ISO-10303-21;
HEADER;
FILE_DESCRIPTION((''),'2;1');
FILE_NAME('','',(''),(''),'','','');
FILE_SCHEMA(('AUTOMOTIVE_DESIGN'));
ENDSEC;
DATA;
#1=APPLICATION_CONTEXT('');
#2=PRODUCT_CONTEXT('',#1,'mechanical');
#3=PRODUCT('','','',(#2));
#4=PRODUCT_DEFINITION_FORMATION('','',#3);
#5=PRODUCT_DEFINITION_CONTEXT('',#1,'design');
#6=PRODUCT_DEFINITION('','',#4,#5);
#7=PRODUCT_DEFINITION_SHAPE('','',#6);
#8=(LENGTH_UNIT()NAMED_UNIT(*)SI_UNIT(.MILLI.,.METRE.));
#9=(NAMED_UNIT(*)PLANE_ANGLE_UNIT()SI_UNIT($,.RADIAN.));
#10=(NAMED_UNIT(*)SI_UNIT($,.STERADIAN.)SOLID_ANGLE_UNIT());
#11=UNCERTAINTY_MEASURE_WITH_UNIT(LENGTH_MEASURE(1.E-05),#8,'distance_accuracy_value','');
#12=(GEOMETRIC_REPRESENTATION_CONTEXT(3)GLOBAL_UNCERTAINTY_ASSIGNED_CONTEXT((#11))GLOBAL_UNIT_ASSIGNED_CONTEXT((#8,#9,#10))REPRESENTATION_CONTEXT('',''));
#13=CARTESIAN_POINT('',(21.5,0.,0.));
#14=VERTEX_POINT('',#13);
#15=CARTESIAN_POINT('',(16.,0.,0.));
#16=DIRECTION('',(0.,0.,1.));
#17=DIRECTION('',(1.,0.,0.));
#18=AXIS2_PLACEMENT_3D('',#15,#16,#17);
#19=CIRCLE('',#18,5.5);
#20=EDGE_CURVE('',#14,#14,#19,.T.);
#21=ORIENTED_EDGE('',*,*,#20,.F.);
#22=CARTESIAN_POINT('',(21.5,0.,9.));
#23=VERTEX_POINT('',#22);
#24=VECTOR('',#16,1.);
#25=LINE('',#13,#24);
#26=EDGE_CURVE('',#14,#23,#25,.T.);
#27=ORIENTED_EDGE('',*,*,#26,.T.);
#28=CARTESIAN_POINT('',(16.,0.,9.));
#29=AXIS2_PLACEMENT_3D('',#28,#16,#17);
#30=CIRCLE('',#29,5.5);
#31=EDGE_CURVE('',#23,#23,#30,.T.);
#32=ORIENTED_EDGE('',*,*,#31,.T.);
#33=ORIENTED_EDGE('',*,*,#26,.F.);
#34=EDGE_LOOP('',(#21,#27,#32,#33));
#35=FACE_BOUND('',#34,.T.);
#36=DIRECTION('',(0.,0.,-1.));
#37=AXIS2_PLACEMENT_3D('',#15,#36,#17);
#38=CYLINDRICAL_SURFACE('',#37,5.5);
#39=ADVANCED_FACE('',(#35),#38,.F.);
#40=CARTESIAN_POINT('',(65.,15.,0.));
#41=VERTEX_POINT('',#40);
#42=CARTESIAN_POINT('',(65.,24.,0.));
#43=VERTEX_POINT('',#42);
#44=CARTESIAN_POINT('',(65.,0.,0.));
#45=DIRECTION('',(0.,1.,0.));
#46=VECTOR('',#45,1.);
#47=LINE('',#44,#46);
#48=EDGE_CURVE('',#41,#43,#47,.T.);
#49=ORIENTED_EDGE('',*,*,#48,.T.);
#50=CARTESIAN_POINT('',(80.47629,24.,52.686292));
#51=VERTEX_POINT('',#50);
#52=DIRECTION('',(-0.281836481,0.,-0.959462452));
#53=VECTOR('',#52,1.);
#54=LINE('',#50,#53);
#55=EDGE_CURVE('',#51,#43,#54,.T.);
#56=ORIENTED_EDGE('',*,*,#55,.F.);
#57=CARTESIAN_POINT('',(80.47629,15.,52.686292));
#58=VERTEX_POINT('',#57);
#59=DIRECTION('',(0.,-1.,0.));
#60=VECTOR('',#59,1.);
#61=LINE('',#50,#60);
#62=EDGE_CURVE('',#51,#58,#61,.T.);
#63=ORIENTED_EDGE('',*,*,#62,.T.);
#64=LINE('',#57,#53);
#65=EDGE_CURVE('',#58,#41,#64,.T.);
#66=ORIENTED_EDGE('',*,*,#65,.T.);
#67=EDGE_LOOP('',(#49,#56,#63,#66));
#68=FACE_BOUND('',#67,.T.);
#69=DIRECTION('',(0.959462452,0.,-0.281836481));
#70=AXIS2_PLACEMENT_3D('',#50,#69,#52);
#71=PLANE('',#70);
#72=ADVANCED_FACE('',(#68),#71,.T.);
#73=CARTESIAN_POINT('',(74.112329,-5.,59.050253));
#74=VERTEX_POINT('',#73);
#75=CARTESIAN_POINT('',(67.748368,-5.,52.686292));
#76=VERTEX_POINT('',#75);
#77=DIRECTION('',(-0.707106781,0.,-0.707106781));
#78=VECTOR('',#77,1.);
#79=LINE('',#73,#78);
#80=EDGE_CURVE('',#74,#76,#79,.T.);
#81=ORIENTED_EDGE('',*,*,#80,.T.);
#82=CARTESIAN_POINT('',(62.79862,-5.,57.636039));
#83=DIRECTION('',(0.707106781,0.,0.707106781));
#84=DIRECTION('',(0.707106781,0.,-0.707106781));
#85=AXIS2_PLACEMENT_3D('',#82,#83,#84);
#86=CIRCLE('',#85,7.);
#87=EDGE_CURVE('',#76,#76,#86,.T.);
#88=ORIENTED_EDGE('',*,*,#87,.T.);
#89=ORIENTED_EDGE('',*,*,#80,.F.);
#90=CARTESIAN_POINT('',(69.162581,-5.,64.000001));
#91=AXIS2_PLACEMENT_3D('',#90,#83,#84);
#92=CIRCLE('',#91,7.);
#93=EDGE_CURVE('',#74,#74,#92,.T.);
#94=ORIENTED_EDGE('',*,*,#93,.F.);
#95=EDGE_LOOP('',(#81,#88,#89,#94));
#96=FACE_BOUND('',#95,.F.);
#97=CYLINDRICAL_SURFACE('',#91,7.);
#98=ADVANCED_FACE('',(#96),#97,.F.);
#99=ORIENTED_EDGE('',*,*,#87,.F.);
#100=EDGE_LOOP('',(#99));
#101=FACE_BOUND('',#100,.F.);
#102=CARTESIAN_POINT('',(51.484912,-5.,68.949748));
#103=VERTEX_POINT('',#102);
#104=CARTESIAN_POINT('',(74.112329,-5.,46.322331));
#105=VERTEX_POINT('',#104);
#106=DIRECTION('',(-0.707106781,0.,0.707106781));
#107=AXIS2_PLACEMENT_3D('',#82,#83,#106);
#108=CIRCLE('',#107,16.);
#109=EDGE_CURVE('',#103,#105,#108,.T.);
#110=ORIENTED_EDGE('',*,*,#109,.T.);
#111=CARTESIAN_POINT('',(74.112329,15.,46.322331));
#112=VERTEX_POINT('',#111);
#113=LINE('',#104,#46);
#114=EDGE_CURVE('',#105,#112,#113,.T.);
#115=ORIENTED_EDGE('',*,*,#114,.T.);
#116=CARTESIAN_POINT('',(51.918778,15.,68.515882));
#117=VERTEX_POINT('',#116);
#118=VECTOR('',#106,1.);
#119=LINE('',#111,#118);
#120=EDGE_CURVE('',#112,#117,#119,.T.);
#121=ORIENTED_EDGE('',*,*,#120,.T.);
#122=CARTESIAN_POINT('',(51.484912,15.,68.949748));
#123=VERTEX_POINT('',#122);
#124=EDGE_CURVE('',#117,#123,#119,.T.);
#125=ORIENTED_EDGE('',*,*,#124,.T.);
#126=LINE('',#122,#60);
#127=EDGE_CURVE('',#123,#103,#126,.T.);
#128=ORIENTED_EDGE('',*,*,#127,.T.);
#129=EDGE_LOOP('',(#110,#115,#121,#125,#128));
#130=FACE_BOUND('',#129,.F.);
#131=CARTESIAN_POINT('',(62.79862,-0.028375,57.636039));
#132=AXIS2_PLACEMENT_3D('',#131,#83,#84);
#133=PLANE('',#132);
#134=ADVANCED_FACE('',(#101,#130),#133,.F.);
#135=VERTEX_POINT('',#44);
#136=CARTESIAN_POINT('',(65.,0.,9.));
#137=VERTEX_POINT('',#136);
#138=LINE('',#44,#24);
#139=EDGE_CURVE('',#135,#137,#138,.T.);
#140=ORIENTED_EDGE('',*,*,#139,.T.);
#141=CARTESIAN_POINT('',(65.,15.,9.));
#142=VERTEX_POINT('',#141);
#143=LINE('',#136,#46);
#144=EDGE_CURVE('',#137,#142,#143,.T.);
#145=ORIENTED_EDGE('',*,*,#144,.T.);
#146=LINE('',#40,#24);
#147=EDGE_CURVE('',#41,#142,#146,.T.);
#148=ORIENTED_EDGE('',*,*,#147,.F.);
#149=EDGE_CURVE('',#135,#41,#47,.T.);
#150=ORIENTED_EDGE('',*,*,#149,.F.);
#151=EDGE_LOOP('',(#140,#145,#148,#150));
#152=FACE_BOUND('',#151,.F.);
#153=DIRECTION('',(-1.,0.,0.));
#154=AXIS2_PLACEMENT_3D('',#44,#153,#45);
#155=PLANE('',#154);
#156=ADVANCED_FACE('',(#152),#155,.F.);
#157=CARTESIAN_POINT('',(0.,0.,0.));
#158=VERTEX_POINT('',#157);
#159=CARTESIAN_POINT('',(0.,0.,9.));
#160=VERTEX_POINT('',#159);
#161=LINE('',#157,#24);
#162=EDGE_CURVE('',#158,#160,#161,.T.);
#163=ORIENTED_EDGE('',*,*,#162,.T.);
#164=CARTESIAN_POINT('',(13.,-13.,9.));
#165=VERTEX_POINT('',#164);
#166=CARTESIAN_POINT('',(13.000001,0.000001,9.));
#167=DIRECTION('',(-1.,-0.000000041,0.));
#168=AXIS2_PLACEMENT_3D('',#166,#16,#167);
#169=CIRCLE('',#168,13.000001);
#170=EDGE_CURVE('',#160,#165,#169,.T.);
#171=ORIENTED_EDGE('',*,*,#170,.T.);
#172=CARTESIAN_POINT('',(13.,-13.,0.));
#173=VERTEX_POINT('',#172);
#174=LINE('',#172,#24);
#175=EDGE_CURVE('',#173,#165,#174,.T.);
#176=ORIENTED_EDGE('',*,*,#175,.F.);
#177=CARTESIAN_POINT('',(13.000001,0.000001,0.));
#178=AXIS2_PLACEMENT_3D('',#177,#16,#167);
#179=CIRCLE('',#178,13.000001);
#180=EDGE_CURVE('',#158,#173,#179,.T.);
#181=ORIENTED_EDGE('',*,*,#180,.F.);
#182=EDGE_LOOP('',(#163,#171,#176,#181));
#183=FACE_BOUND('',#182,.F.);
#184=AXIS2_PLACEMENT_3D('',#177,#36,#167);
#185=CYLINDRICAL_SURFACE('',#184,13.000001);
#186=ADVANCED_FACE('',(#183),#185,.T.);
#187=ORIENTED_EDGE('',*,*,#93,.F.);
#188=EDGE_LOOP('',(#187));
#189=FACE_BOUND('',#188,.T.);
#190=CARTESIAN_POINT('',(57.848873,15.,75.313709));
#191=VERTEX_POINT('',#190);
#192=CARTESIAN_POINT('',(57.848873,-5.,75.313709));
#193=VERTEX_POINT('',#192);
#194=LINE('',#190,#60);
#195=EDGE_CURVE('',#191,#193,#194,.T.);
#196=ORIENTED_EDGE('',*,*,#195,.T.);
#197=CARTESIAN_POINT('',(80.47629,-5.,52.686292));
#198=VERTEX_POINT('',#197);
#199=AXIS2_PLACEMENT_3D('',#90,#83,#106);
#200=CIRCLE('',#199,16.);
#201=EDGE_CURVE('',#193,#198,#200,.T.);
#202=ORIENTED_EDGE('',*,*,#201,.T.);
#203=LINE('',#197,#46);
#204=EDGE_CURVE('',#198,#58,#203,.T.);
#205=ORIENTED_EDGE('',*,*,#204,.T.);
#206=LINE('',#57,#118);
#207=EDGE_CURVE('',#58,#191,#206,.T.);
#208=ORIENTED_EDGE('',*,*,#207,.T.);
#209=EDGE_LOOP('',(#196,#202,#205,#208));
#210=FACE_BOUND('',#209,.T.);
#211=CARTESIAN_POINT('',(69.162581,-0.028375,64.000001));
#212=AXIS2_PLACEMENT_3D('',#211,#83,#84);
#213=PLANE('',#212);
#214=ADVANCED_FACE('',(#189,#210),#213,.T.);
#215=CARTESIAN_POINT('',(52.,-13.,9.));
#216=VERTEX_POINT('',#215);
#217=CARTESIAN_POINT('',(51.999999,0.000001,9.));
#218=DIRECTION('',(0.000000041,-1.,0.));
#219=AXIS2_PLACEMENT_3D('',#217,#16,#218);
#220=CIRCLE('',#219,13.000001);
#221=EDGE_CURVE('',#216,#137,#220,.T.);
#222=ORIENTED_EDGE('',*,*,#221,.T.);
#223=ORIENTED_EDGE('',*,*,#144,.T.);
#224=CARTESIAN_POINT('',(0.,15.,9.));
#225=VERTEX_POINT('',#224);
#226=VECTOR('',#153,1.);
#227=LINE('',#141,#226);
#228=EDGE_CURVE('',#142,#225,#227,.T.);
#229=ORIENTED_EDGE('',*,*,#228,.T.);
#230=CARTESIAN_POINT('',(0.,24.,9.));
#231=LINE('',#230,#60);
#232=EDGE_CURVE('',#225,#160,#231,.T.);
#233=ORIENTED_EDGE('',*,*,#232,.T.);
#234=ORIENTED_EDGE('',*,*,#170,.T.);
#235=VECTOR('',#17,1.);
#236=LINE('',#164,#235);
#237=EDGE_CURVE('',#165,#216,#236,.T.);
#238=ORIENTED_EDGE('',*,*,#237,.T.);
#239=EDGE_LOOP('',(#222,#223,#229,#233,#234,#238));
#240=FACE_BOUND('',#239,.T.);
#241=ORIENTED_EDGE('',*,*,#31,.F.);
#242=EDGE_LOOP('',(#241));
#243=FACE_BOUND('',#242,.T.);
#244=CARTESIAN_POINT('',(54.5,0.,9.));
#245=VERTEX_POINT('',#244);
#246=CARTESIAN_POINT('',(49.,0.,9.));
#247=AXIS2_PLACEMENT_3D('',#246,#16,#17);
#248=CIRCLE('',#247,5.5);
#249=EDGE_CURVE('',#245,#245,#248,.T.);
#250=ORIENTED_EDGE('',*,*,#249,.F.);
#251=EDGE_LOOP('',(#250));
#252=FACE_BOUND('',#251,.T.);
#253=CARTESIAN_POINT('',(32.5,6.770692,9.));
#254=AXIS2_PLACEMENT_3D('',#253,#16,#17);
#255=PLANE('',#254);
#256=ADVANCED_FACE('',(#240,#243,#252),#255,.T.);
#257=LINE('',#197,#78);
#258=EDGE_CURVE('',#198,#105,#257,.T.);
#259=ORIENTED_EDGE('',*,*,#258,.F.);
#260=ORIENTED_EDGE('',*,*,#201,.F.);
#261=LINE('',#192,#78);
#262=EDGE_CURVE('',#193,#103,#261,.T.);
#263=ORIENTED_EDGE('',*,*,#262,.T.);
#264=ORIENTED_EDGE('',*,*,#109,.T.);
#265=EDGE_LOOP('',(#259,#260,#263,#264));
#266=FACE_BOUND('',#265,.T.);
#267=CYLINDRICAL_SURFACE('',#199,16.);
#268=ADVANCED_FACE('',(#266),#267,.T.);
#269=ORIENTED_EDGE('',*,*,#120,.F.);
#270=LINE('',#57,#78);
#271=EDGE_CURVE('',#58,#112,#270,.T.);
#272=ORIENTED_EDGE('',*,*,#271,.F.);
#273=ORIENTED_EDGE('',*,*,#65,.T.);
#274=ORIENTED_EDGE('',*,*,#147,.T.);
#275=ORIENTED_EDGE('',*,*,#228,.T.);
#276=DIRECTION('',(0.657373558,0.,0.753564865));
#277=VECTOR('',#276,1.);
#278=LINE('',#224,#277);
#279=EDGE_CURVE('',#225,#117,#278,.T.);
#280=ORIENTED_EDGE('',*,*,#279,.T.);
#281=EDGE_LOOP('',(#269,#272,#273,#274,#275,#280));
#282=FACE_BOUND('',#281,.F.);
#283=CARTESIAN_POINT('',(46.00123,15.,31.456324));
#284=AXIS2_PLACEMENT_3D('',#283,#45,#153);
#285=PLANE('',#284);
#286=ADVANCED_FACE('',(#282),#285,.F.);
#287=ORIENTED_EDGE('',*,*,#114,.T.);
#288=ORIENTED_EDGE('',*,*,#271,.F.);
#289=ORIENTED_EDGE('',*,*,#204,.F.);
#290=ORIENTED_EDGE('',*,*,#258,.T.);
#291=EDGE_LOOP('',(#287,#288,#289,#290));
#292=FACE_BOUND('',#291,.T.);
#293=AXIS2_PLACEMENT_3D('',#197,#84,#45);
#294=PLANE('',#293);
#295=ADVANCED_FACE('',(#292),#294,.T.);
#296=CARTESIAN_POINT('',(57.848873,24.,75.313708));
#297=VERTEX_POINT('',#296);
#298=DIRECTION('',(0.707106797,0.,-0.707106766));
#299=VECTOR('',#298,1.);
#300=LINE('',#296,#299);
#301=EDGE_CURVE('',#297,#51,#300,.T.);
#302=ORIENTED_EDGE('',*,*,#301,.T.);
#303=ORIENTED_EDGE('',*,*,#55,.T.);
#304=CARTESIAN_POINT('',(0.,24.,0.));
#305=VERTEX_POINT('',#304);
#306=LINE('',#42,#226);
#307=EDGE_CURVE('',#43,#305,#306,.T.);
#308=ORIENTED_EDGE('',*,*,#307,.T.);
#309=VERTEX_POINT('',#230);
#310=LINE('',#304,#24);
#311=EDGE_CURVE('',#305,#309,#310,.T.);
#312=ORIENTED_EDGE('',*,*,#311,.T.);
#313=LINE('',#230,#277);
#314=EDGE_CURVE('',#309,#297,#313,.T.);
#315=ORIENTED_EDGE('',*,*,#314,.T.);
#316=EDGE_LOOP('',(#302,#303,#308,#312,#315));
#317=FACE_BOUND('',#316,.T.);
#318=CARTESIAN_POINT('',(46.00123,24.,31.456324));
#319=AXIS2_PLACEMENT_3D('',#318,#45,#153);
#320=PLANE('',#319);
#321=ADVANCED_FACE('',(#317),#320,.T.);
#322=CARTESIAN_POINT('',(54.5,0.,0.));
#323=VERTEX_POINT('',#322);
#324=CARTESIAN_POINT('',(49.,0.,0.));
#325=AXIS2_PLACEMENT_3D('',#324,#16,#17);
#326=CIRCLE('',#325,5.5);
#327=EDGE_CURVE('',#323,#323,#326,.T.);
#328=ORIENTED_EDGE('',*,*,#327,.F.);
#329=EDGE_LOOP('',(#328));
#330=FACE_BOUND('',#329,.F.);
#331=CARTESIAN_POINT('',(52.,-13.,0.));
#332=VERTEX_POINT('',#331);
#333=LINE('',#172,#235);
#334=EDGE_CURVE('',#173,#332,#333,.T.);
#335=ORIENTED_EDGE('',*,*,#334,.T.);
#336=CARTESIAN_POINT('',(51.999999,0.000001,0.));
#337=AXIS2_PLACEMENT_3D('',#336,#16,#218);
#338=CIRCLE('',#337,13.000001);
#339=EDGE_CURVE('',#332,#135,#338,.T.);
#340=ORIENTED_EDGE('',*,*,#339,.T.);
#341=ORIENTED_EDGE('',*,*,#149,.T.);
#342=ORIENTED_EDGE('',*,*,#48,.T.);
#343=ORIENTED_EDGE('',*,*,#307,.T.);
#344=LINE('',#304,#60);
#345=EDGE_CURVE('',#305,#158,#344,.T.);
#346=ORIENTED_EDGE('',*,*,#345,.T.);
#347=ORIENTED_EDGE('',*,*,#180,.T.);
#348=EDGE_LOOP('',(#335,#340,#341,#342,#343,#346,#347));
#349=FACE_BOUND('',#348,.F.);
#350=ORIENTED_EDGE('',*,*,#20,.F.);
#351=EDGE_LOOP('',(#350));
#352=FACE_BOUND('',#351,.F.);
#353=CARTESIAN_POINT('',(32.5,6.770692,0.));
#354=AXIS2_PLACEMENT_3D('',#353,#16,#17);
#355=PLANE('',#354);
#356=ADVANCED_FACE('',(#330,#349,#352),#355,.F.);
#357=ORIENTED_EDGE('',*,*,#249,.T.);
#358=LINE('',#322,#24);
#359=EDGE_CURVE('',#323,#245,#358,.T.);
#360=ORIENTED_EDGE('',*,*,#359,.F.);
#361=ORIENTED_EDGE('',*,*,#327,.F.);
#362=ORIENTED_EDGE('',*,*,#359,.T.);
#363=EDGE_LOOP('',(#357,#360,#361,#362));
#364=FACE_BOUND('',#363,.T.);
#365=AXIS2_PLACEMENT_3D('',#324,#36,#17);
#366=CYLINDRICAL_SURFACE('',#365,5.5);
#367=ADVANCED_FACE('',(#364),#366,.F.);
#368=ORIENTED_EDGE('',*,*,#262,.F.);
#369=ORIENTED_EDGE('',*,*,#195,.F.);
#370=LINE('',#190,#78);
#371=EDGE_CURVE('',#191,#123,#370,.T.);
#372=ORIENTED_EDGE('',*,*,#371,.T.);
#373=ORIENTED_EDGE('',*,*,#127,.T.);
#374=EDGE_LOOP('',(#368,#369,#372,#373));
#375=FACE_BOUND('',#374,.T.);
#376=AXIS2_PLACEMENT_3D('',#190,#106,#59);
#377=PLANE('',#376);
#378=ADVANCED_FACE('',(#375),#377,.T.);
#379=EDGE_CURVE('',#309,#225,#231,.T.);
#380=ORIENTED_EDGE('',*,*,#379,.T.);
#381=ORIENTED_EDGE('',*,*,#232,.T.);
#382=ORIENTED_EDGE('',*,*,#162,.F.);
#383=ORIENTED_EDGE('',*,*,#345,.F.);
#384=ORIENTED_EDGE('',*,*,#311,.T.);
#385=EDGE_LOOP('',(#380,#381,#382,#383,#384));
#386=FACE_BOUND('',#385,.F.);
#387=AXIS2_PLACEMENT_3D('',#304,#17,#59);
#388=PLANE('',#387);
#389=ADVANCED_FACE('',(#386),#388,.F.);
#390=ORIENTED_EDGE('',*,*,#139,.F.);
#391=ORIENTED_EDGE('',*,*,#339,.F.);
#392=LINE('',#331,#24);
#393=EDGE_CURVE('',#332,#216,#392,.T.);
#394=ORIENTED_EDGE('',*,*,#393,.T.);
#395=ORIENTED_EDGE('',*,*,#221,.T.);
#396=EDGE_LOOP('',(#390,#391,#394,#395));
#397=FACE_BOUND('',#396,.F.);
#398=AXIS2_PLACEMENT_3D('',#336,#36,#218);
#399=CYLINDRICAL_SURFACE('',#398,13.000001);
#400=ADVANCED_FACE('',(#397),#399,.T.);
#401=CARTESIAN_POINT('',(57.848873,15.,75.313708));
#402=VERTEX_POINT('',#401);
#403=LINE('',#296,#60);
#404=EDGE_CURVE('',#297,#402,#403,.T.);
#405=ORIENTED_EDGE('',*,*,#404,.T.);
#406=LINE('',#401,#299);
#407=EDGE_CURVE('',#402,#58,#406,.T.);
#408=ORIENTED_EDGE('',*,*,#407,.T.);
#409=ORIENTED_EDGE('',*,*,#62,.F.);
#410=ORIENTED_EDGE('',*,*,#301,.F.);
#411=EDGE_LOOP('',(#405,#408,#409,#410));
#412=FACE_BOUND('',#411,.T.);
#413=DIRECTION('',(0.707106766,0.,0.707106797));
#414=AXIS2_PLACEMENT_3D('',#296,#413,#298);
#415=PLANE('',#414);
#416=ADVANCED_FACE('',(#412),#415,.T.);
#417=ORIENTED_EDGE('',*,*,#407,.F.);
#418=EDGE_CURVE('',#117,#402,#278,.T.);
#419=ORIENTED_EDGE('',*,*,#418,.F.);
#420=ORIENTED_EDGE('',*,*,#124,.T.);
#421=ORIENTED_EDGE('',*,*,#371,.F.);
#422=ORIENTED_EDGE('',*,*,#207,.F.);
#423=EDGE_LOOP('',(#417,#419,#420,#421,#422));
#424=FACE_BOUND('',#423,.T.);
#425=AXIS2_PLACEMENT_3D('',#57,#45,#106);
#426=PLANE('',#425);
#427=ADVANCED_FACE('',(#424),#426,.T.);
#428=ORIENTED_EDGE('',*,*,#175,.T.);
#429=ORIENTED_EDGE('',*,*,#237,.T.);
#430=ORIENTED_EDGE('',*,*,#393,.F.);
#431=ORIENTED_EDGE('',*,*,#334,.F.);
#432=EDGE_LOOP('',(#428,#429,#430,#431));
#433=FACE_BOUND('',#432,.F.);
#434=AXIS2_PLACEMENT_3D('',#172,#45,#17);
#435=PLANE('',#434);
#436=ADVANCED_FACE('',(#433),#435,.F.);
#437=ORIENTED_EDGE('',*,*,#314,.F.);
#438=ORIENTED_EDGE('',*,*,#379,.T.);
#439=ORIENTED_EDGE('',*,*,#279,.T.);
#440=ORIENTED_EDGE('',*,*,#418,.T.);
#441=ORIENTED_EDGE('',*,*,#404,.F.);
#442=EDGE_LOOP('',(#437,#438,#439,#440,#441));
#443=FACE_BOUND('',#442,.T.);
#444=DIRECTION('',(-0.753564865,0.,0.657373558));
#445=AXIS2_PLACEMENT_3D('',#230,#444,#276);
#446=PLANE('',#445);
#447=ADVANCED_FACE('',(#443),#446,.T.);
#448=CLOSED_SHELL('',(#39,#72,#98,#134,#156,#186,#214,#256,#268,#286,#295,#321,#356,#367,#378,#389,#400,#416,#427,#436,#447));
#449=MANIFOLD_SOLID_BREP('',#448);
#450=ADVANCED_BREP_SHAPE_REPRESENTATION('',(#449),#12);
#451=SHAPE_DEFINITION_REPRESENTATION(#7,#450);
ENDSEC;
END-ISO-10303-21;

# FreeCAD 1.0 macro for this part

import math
import FreeCAD as App
import Part
import Sketcher
from FreeCAD import Vector
Q = App.Units.Quantity

doc = App.newDocument("Part")
body = doc.addObject("PartDesign::Body", "Body")

sketch1 = body.newObject("Sketcher::SketchObject", "Sketch")
sketch1.AttachmentSupport = (doc.getObject("XY_Plane"), [""])
sketch1.MapMode = "FlatFace"
sketch1.addGeometry([
    Part.LineSegment(Vector(65, 24, 0), Vector(0, 24, 0)),
    Part.LineSegment(Vector(0, 24, 0), Vector(0, 0, 0)),
    Part.ArcOfCircle(Part.Circle(Vector(13, 0, 0), Vector(0, 0, 1), 13), math.radians(-180), math.radians(-90)),
    Part.LineSegment(Vector(13, -13, 0), Vector(52, -13, 0)),
    Part.ArcOfCircle(Part.Circle(Vector(52, 0, 0), Vector(0, 0, 1), 13), math.radians(-90), math.radians(0)),
    Part.LineSegment(Vector(65, 0, 0), Vector(65, 24, 0)),
    Part.Circle(Vector(16, 0, 0), Vector(0, 0, 1), 6),
    Part.Circle(Vector(49, 0, 0), Vector(0, 0, 1), 6),
], False)
sketch1.addConstraint([
    Sketcher.Constraint("Coincident", 0, 2, 1, 1),
    Sketcher.Constraint("Tangent", 1, 2, 2, 1),
    Sketcher.Constraint("Tangent", 2, 2, 3, 1),
    Sketcher.Constraint("Tangent", 3, 2, 4, 1),
    Sketcher.Constraint("Tangent", 4, 2, 5, 1),
    Sketcher.Constraint("Coincident", 5, 2, 0, 1),
    Sketcher.Constraint("Horizontal", 0),
    Sketcher.Constraint("Vertical", 1),
    Sketcher.Constraint("Horizontal", 3),
    Sketcher.Constraint("Vertical", 5),
    Sketcher.Constraint("Coincident", 1, 2, -1, 1),
    Sketcher.Constraint("Equal", 2, 4),
    Sketcher.Constraint("Equal", 6, 7),
    Sketcher.Constraint("PointOnObject", 6, 3, -1),
    Sketcher.Constraint("PointOnObject", 7, 3, -1),
    Sketcher.Constraint("Diameter", 6, Q("11 mm")),
    Sketcher.Constraint("Radius", 2, Q("13.000001 mm")),
    Sketcher.Constraint("DistanceX", 0, 2, 0, 1, Q("65 mm")),
    Sketcher.Constraint("DistanceY", 1, 2, 1, 1, Q("24 mm")),
    Sketcher.Constraint("DistanceX", -1, 1, 6, 3, Q("16 mm")),
    Sketcher.Constraint("DistanceX", -1, 1, 7, 3, Q("49 mm")),
])
pad1 = body.newObject("PartDesign::Pad", "Pad")
pad1.Profile = sketch1
pad1.Length = 9

sketch2 = body.newObject("Sketcher::SketchObject", "Sketch001")
sketch2.AttachmentSupport = (doc.getObject("XZ_Plane"), [""])
sketch2.MapMode = "FlatFace"
sketch2.AttachmentOffset = App.Placement(Vector(0, 0, -24), App.Rotation())
sketch2.addGeometry([
    Part.LineSegment(Vector(65, 9, 0), Vector(0, 9, 0)),
    Part.LineSegment(Vector(0, 9, 0), Vector(58, 75, 0)),
    Part.LineSegment(Vector(58, 75, 0), Vector(80, 53, 0)),
    Part.LineSegment(Vector(80, 53, 0), Vector(65, 0, 0)),
    Part.LineSegment(Vector(65, 0, 0), Vector(65, 9, 0)),
], False)
sketch2.addConstraint([
    Sketcher.Constraint("Coincident", 0, 2, 1, 1),
    Sketcher.Constraint("Coincident", 1, 2, 2, 1),
    Sketcher.Constraint("Coincident", 2, 2, 3, 1),
    Sketcher.Constraint("Coincident", 3, 2, 4, 1),
    Sketcher.Constraint("Coincident", 4, 2, 0, 1),
    Sketcher.Constraint("Horizontal", 0),
    Sketcher.Constraint("Vertical", 4),
    Sketcher.Constraint("PointOnObject", 0, 2, -2),
    Sketcher.Constraint("PointOnObject", 3, 2, -1),
    Sketcher.Constraint("DistanceX", 0, 2, 0, 1, Q("65 mm")),
    Sketcher.Constraint("DistanceY", 4, 1, 4, 2, Q("9 mm")),
    Sketcher.Constraint("Angle", 2, Q("-44.999999 deg")),
    Sketcher.Constraint("Distance", 1, Q("88 mm")),
    Sketcher.Constraint("Distance", 2, Q("31.999999 mm")),
    Sketcher.Constraint("DistanceY", -1, 1, 1, 2, Q("75.313708 mm")),
])
pad2 = body.newObject("PartDesign::Pad", "Pad001")
pad2.Profile = sketch2
pad2.Length = 9

sketch3 = body.newObject("Sketcher::SketchObject", "Sketch002")
sketch3.Placement = App.Placement(Vector(66.581291, 0, 66.581291), App.Rotation(Vector(0.707106781, 0, -0.707106781), Vector(0, 0.999999999, 0), Vector(0.707106781, 0, 0.707106781), "ZXY"))
sketch3.addGeometry([
    Part.LineSegment(Vector(20, 15, 0), Vector(-12, 15, 0)),
    Part.LineSegment(Vector(-12, 15, 0), Vector(-12, -5, 0)),
    Part.ArcOfCircle(Part.Circle(Vector(4, -5, 0), Vector(0, 0, 1), 16), math.radians(180), math.radians(360)),
    Part.LineSegment(Vector(20, -5, 0), Vector(20, 15, 0)),
    Part.Circle(Vector(4, -5, 0), Vector(0, 0, 1), 7),
], False)
sketch3.addConstraint([
    Sketcher.Constraint("Coincident", 0, 2, 1, 1),
    Sketcher.Constraint("Tangent", 1, 2, 2, 1),
    Sketcher.Constraint("Tangent", 2, 2, 3, 1),
    Sketcher.Constraint("Coincident", 3, 2, 0, 1),
    Sketcher.Constraint("Horizontal", 0),
    Sketcher.Constraint("Vertical", 1),
    Sketcher.Constraint("Vertical", 3),
    Sketcher.Constraint("Coincident", 4, 3, 2, 3),
    Sketcher.Constraint("Diameter", 4, Q("14 mm")),
    Sketcher.Constraint("Radius", 2, Q("16 mm")),
    Sketcher.Constraint("DistanceY", 1, 2, 1, 1, Q("20 mm")),
    Sketcher.Constraint("DistanceY", 2, 3, -1, 1, Q("5 mm")),
    Sketcher.Constraint("DistanceX", -1, 1, 2, 3, Q("3.650496 mm")),
])
pad3 = body.newObject("PartDesign::Pad", "Pad002")
pad3.Profile = sketch3
pad3.Length = 9
pad3.Reversed = True

doc.recompute()
